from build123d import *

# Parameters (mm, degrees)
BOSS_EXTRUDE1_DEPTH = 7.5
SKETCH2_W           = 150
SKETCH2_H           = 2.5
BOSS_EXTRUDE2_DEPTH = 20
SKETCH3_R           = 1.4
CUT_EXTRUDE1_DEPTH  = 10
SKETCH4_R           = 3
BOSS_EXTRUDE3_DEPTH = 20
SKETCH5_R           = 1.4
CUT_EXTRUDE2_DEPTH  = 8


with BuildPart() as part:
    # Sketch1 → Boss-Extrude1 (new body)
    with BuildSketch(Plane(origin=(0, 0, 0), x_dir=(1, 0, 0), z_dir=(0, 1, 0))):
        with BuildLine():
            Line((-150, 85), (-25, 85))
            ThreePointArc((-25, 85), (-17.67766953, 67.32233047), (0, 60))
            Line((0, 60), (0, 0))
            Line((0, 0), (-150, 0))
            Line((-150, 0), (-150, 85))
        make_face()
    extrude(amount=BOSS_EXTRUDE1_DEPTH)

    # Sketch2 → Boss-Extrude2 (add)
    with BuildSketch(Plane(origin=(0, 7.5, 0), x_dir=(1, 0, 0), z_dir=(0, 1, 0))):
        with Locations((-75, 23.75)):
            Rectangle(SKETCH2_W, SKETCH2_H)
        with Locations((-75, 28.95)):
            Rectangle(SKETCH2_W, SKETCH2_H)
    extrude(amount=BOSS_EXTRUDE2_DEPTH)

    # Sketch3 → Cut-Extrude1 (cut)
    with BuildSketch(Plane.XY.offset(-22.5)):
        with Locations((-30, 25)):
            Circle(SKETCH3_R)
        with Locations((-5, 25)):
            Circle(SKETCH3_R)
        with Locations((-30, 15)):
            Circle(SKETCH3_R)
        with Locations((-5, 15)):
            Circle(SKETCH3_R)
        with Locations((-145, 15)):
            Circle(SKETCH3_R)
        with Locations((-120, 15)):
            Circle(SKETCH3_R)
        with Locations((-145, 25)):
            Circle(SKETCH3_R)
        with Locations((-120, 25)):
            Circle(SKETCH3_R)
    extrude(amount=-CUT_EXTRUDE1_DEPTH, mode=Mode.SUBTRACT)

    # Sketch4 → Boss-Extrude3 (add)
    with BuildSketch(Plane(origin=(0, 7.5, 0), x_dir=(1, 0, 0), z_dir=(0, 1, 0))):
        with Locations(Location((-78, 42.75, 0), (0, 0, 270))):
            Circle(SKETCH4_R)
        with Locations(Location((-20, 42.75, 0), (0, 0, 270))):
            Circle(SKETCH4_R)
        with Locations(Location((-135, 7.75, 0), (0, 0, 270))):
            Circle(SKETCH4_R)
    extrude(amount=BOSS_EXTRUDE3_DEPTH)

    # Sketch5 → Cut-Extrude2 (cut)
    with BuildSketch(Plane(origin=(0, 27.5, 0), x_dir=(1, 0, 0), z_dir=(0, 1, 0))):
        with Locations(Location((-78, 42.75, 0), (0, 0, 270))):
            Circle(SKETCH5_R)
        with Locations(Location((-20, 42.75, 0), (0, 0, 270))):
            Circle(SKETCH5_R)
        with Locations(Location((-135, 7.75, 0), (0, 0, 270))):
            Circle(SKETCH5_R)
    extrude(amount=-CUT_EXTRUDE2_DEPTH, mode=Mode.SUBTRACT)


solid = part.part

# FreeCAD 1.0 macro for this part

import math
import FreeCAD as App
import Part
import Sketcher
Q = App.Units.Quantity


def add_polygon(sketch, points):
    """Adds a closed chain of lines whose ends are joined by coincident constraints."""
    first, n = sketch.GeometryCount, len(points)
    for a, b in zip(points, points[1:] + points[:1]):
        sketch.addGeometry(Part.LineSegment(App.Vector(*a, 0), App.Vector(*b, 0)), False)
    for i in range(n):
        sketch.addConstraint(Sketcher.Constraint("Coincident", first + i, 2, first + (i + 1) % n, 1))

doc = App.newDocument("Part")
body = doc.addObject("PartDesign::Body", "Body")

sketch1 = body.newObject("Sketcher::SketchObject", "Sketch")
sketch1.AttachmentSupport = (doc.getObject("XZ_Plane"), [""])
sketch1.MapMode = "FlatFace"
sketch1.addGeometry(Part.LineSegment(App.Vector(-25, -85, 0), App.Vector(-150, -85, 0)), False)
sketch1.addGeometry(Part.LineSegment(App.Vector(-150, -85, 0), App.Vector(-150, 0, 0)), False)
sketch1.addGeometry(Part.LineSegment(App.Vector(-150, 0, 0), App.Vector(0, 0, 0)), False)
sketch1.addGeometry(Part.LineSegment(App.Vector(0, 0, 0), App.Vector(0, -60, 0)), False)
sketch1.addGeometry(Part.ArcOfCircle(Part.Circle(App.Vector(0, -85, 0), App.Vector(0, 0, 1), 25), math.radians(90), math.radians(180)), False)
sketch1.addConstraint(Sketcher.Constraint("Coincident", 0, 2, 1, 1))
sketch1.addConstraint(Sketcher.Constraint("Coincident", 1, 2, 2, 1))
sketch1.addConstraint(Sketcher.Constraint("Coincident", 2, 2, 3, 1))
sketch1.addConstraint(Sketcher.Constraint("Coincident", 3, 2, 4, 1))
sketch1.addConstraint(Sketcher.Constraint("Coincident", 4, 2, 0, 1))
sketch1.addConstraint(Sketcher.Constraint("Horizontal", 0))
sketch1.addConstraint(Sketcher.Constraint("Vertical", 1))
sketch1.addConstraint(Sketcher.Constraint("Horizontal", 2))
sketch1.addConstraint(Sketcher.Constraint("Vertical", 3))
sketch1.addConstraint(Sketcher.Constraint("Coincident", 2, 2, -1, 1))
sketch1.addConstraint(Sketcher.Constraint("PointOnObject", 4, 3, -2))
sketch1.addConstraint(Sketcher.Constraint("Horizontal", 4, 3, 0, 2))
sketch1.addConstraint(Sketcher.Constraint("Radius", 4, Q("25 mm")))
sketch1.addConstraint(Sketcher.Constraint("DistanceX", 0, 2, 0, 1, Q("125 mm")))
sketch1.addConstraint(Sketcher.Constraint("DistanceY", 1, 1, 1, 2, Q("85 mm")))
pad1 = body.newObject("PartDesign::Pad", "Pad")
pad1.Profile = sketch1
pad1.Length = 7.5
pad1.Reversed = True

sketch2 = body.newObject("Sketcher::SketchObject", "Sketch001")
sketch2.AttachmentSupport = (doc.getObject("XZ_Plane"), [""])
sketch2.MapMode = "FlatFace"
sketch2.AttachmentOffset = App.Placement(App.Vector(0, 0, -7.5), App.Rotation())
add_polygon(sketch2, [(-150, -25), (-150, -22.5), (0, -22.5), (0, -25)])
add_polygon(sketch2, [(-150, -30.2), (-150, -27.7), (0, -27.7), (0, -30.2)])
sketch2.addConstraint(Sketcher.Constraint("Vertical", 0))
sketch2.addConstraint(Sketcher.Constraint("Horizontal", 1))
sketch2.addConstraint(Sketcher.Constraint("Vertical", 2))
sketch2.addConstraint(Sketcher.Constraint("Horizontal", 3))
sketch2.addConstraint(Sketcher.Constraint("Vertical", 4))
sketch2.addConstraint(Sketcher.Constraint("Horizontal", 5))
sketch2.addConstraint(Sketcher.Constraint("Vertical", 6))
sketch2.addConstraint(Sketcher.Constraint("Horizontal", 7))
sketch2.addConstraint(Sketcher.Constraint("PointOnObject", 1, 2, -2))
sketch2.addConstraint(Sketcher.Constraint("PointOnObject", 5, 2, -2))
sketch2.addConstraint(Sketcher.Constraint("Vertical", 3, 2, 4, 2))
sketch2.addConstraint(Sketcher.Constraint("Equal", 2, 4))
sketch2.addConstraint(Sketcher.Constraint("DistanceX", 1, 1, 1, 2, Q("150 mm")))
sketch2.addConstraint(Sketcher.Constraint("DistanceY", 0, 1, 0, 2, Q("2.5 mm")))
sketch2.addConstraint(Sketcher.Constraint("DistanceY", 2, 2, -1, 1, Q("25 mm")))
sketch2.addConstraint(Sketcher.Constraint("DistanceY", 4, 2, -1, 1, Q("27.7 mm")))
pad2 = body.newObject("PartDesign::Pad", "Pad001")
pad2.Profile = sketch2
pad2.Length = 20
pad2.Reversed = True

sketch3 = body.newObject("Sketcher::SketchObject", "Sketch002")
sketch3.AttachmentSupport = (doc.getObject("XY_Plane"), [""])
sketch3.MapMode = "FlatFace"
sketch3.AttachmentOffset = App.Placement(App.Vector(0, 0, -22.5), App.Rotation())
sketch3.addGeometry(Part.Circle(App.Vector(-30, 25, 0), App.Vector(0, 0, 1), 1.4), False)
sketch3.addGeometry(Part.Circle(App.Vector(-5, 25, 0), App.Vector(0, 0, 1), 1.4), False)
sketch3.addGeometry(Part.Circle(App.Vector(-30, 15, 0), App.Vector(0, 0, 1), 1.4), False)
sketch3.addGeometry(Part.Circle(App.Vector(-5, 15, 0), App.Vector(0, 0, 1), 1.4), False)
sketch3.addGeometry(Part.Circle(App.Vector(-145, 15, 0), App.Vector(0, 0, 1), 1.4), False)
sketch3.addGeometry(Part.Circle(App.Vector(-120, 15, 0), App.Vector(0, 0, 1), 1.4), False)
sketch3.addGeometry(Part.Circle(App.Vector(-145, 25, 0), App.Vector(0, 0, 1), 1.4), False)
sketch3.addGeometry(Part.Circle(App.Vector(-120, 25, 0), App.Vector(0, 0, 1), 1.4), False)
sketch3.addConstraint(Sketcher.Constraint("Equal", 0, 1))
sketch3.addConstraint(Sketcher.Constraint("Equal", 1, 2))
sketch3.addConstraint(Sketcher.Constraint("Equal", 2, 3))
sketch3.addConstraint(Sketcher.Constraint("Equal", 3, 4))
sketch3.addConstraint(Sketcher.Constraint("Equal", 4, 5))
sketch3.addConstraint(Sketcher.Constraint("Equal", 5, 6))
sketch3.addConstraint(Sketcher.Constraint("Equal", 6, 7))
sketch3.addConstraint(Sketcher.Constraint("Horizontal", 0, 3, 1, 3))
sketch3.addConstraint(Sketcher.Constraint("Horizontal", 2, 3, 3, 3))
sketch3.addConstraint(Sketcher.Constraint("Horizontal", 3, 3, 4, 3))
sketch3.addConstraint(Sketcher.Constraint("Horizontal", 4, 3, 5, 3))
sketch3.addConstraint(Sketcher.Constraint("Horizontal", 1, 3, 6, 3))
sketch3.addConstraint(Sketcher.Constraint("Horizontal", 6, 3, 7, 3))
sketch3.addConstraint(Sketcher.Constraint("Vertical", 0, 3, 2, 3))
sketch3.addConstraint(Sketcher.Constraint("Vertical", 1, 3, 3, 3))
sketch3.addConstraint(Sketcher.Constraint("Vertical", 4, 3, 6, 3))
sketch3.addConstraint(Sketcher.Constraint("Vertical", 5, 3, 7, 3))
sketch3.addConstraint(Sketcher.Constraint("Diameter", 0, Q("2.8 mm")))
sketch3.addConstraint(Sketcher.Constraint("DistanceX", 0, 3, -1, 1, Q("30 mm")))
sketch3.addConstraint(Sketcher.Constraint("DistanceY", -1, 1, 0, 3, Q("25 mm")))
sketch3.addConstraint(Sketcher.Constraint("DistanceX", 1, 3, -1, 1, Q("5 mm")))
sketch3.addConstraint(Sketcher.Constraint("DistanceY", -1, 1, 2, 3, Q("15 mm")))
sketch3.addConstraint(Sketcher.Constraint("DistanceX", 4, 3, -1, 1, Q("145 mm")))
sketch3.addConstraint(Sketcher.Constraint("DistanceX", 5, 3, -1, 1, Q("120 mm")))
pocket1 = body.newObject("PartDesign::Pocket", "Pocket")
pocket1.Profile = sketch3
pocket1.Length = 10

sketch4 = body.newObject("Sketcher::SketchObject", "Sketch003")
sketch4.AttachmentSupport = (doc.getObject("XZ_Plane"), [""])
sketch4.MapMode = "FlatFace"
sketch4.AttachmentOffset = App.Placement(App.Vector(0, 0, -7.5), App.Rotation())
sketch4.addGeometry(Part.Circle(App.Vector(-78, -42.8, 0), App.Vector(0, 0, 1), 3), False)
sketch4.addGeometry(Part.Circle(App.Vector(-20, -42.8, 0), App.Vector(0, 0, 1), 3), False)
sketch4.addGeometry(Part.Circle(App.Vector(-135, -7.8, 0), App.Vector(0, 0, 1), 3), False)
sketch4.addConstraint(Sketcher.Constraint("Equal", 0, 1))
sketch4.addConstraint(Sketcher.Constraint("Equal", 1, 2))
sketch4.addConstraint(Sketcher.Constraint("Horizontal", 0, 3, 1, 3))
sketch4.addConstraint(Sketcher.Constraint("Diameter", 0, Q("6 mm")))
sketch4.addConstraint(Sketcher.Constraint("DistanceX", 0, 3, -1, 1, Q("78 mm")))
sketch4.addConstraint(Sketcher.Constraint("DistanceX", 1, 3, -1, 1, Q("20 mm")))
sketch4.addConstraint(Sketcher.Constraint("DistanceX", 2, 3, -1, 1, Q("135 mm")))
sketch4.addConstraint(Sketcher.Constraint("DistanceY", 0, 3, 2, 3, Q("35 mm")))
sketch4.addConstraint(Sketcher.Constraint("DistanceY", 0, 3, -1, 1, Q("42.75 mm")))
pad3 = body.newObject("PartDesign::Pad", "Pad002")
pad3.Profile = sketch4
pad3.Length = 20
pad3.Reversed = True

sketch5 = body.newObject("Sketcher::SketchObject", "Sketch004")
sketch5.AttachmentSupport = (doc.getObject("XZ_Plane"), [""])
sketch5.MapMode = "FlatFace"
sketch5.AttachmentOffset = App.Placement(App.Vector(0, 0, -27.5), App.Rotation())
sketch5.addGeometry(Part.Circle(App.Vector(-78, -42.8, 0), App.Vector(0, 0, 1), 1.4), False)
sketch5.addGeometry(Part.Circle(App.Vector(-20, -42.8, 0), App.Vector(0, 0, 1), 1.4), False)
sketch5.addGeometry(Part.Circle(App.Vector(-135, -7.8, 0), App.Vector(0, 0, 1), 1.4), False)
sketch5.addConstraint(Sketcher.Constraint("Equal", 0, 1))
sketch5.addConstraint(Sketcher.Constraint("Equal", 1, 2))
sketch5.addConstraint(Sketcher.Constraint("Horizontal", 0, 3, 1, 3))
sketch5.addConstraint(Sketcher.Constraint("Diameter", 0, Q("2.8 mm")))
sketch5.addConstraint(Sketcher.Constraint("DistanceX", 0, 3, -1, 1, Q("78 mm")))
sketch5.addConstraint(Sketcher.Constraint("DistanceX", 1, 3, -1, 1, Q("20 mm")))
sketch5.addConstraint(Sketcher.Constraint("DistanceX", 2, 3, -1, 1, Q("135 mm")))
sketch5.addConstraint(Sketcher.Constraint("DistanceY", 0, 3, 2, 3, Q("35 mm")))
sketch5.addConstraint(Sketcher.Constraint("DistanceY", 0, 3, -1, 1, Q("42.75 mm")))
pocket2 = body.newObject("PartDesign::Pocket", "Pocket001")
pocket2.Profile = sketch5
pocket2.Length = 8
pocket2.Reversed = True

doc.recompute()
